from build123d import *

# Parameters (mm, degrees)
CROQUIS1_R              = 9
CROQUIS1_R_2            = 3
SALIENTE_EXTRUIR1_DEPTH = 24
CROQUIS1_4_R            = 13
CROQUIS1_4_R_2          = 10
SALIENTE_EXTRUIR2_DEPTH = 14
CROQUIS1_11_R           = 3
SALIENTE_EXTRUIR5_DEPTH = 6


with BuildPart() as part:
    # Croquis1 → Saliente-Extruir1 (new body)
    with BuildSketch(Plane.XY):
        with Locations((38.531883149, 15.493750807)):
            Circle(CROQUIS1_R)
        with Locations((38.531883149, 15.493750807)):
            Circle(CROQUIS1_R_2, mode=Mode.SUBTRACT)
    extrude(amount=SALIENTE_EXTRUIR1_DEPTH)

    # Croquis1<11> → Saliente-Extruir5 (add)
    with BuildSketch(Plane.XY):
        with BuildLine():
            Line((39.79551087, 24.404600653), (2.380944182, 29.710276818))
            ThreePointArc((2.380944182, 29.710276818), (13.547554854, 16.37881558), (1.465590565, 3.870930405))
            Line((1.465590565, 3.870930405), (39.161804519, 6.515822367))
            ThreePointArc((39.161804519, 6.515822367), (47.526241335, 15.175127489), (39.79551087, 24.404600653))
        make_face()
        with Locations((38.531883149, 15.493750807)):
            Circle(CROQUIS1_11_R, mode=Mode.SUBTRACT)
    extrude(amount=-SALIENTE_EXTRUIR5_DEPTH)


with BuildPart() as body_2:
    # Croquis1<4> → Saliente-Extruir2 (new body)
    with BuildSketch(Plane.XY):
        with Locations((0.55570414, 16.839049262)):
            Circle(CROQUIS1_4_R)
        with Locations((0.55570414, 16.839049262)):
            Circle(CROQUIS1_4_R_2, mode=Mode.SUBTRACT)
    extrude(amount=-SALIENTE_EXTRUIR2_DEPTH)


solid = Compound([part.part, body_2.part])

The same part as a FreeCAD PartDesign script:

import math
import FreeCAD as App
import Part
import Sketcher

V = App.Vector

doc = App.newDocument("Part")
body = doc.addObject("PartDesign::Body", "Body")

sketch1 = body.newObject("Sketcher::SketchObject", "Sketch")
sketch1.AttachmentSupport = (doc.getObject("XY_Plane"), [""])
sketch1.MapMode = "FlatFace"
sketch1.addGeometry([
    Part.Circle(V(38.5, 15.5, 0), V(0, 0, 1), 9),
    Part.Circle(V(38.5, 15.5, 0), V(0, 0, 1), 3),
], False)
sketch1.addConstraint([
    Sketcher.Constraint("Coincident", 1, 3, 0, 3),
    Sketcher.Constraint("Diameter", 0, 18.0),
    Sketcher.Constraint("Diameter", 1, 6.0),
    Sketcher.Constraint("DistanceY", -1, 1, 0, 3, 15.493751),
    Sketcher.Constraint("DistanceX", -1, 1, 0, 3, 38.531883),
])
pad1 = body.newObject("PartDesign::Pad", "Pad")
pad1.Profile = sketch1
pad1.Length = 24

sketch2 = body.newObject("Sketcher::SketchObject", "Sketch001")
sketch2.AttachmentSupport = (doc.getObject("XY_Plane"), [""])
sketch2.MapMode = "FlatFace"
sketch2.addGeometry([
    Part.LineSegment(V(39.8, 24.4, 0), V(2.4, 29.7, 0)),
    Part.ArcOfCircle(Part.Circle(V(0.6, 16.8, 0), V(0, 0, 1), 13), math.radians(-86), math.radians(82)),
    Part.LineSegment(V(1.5, 3.9, 0), V(39.2, 6.5, 0)),
    Part.ArcOfCircle(Part.Circle(V(38.5, 15.5, 0), V(0, 0, 1), 9), math.radians(-86), math.radians(82)),
    Part.Circle(V(38.5, 15.5, 0), V(0, 0, 1), 3),
], False)
sketch2.addConstraint([
    Sketcher.Constraint("Tangent", 0, 2, 1, 2),
    Sketcher.Constraint("Tangent", 1, 1, 2, 1),
    Sketcher.Constraint("Tangent", 2, 2, 3, 1),
    Sketcher.Constraint("Tangent", 3, 2, 0, 1),
    Sketcher.Constraint("Coincident", 4, 3, 3, 3),
    Sketcher.Constraint("Diameter", 4, 6.0),
    Sketcher.Constraint("Radius", 1, 13.0),
    Sketcher.Constraint("Radius", 3, 9.0),
    Sketcher.Constraint("DistanceY", -1, 1, 3, 2, 24.404601),
    Sketcher.Constraint("DistanceY", 3, 3, 1, 3, 1.345298),
    Sketcher.Constraint("DistanceX", 1, 3, 2, 2, 38.6061),
    Sketcher.Constraint("DistanceX", -1, 1, 1, 1, 1.465591),
])
pad2 = body.newObject("PartDesign::Pad", "Pad001")
pad2.Profile = sketch2
pad2.Length = 6
pad2.Reversed = True
body2 = doc.addObject("PartDesign::Body", "Body001")

sketch3 = body2.newObject("Sketcher::SketchObject", "Sketch002")
sketch3.AttachmentSupport = (doc.getObject("XY_Plane001"), [""])
sketch3.MapMode = "FlatFace"
sketch3.addGeometry([
    Part.Circle(V(1, 17, 0), V(0, 0, 1), 13),
    Part.Circle(V(1, 17, 0), V(0, 0, 1), 10),
], False)
sketch3.addConstraint([
    Sketcher.Constraint("Coincident", 1, 3, 0, 3),
    Sketcher.Constraint("Diameter", 0, 26.0),
    Sketcher.Constraint("Diameter", 1, 20.0),
    Sketcher.Constraint("DistanceY", -1, 1, 0, 3, 16.839049),
    Sketcher.Constraint("DistanceX", -1, 1, 0, 3, 0.555704),
])
pad3 = body2.newObject("PartDesign::Pad", "Pad002")
pad3.Profile = sketch3
pad3.Length = 14
pad3.Reversed = True

doc.recompute()
